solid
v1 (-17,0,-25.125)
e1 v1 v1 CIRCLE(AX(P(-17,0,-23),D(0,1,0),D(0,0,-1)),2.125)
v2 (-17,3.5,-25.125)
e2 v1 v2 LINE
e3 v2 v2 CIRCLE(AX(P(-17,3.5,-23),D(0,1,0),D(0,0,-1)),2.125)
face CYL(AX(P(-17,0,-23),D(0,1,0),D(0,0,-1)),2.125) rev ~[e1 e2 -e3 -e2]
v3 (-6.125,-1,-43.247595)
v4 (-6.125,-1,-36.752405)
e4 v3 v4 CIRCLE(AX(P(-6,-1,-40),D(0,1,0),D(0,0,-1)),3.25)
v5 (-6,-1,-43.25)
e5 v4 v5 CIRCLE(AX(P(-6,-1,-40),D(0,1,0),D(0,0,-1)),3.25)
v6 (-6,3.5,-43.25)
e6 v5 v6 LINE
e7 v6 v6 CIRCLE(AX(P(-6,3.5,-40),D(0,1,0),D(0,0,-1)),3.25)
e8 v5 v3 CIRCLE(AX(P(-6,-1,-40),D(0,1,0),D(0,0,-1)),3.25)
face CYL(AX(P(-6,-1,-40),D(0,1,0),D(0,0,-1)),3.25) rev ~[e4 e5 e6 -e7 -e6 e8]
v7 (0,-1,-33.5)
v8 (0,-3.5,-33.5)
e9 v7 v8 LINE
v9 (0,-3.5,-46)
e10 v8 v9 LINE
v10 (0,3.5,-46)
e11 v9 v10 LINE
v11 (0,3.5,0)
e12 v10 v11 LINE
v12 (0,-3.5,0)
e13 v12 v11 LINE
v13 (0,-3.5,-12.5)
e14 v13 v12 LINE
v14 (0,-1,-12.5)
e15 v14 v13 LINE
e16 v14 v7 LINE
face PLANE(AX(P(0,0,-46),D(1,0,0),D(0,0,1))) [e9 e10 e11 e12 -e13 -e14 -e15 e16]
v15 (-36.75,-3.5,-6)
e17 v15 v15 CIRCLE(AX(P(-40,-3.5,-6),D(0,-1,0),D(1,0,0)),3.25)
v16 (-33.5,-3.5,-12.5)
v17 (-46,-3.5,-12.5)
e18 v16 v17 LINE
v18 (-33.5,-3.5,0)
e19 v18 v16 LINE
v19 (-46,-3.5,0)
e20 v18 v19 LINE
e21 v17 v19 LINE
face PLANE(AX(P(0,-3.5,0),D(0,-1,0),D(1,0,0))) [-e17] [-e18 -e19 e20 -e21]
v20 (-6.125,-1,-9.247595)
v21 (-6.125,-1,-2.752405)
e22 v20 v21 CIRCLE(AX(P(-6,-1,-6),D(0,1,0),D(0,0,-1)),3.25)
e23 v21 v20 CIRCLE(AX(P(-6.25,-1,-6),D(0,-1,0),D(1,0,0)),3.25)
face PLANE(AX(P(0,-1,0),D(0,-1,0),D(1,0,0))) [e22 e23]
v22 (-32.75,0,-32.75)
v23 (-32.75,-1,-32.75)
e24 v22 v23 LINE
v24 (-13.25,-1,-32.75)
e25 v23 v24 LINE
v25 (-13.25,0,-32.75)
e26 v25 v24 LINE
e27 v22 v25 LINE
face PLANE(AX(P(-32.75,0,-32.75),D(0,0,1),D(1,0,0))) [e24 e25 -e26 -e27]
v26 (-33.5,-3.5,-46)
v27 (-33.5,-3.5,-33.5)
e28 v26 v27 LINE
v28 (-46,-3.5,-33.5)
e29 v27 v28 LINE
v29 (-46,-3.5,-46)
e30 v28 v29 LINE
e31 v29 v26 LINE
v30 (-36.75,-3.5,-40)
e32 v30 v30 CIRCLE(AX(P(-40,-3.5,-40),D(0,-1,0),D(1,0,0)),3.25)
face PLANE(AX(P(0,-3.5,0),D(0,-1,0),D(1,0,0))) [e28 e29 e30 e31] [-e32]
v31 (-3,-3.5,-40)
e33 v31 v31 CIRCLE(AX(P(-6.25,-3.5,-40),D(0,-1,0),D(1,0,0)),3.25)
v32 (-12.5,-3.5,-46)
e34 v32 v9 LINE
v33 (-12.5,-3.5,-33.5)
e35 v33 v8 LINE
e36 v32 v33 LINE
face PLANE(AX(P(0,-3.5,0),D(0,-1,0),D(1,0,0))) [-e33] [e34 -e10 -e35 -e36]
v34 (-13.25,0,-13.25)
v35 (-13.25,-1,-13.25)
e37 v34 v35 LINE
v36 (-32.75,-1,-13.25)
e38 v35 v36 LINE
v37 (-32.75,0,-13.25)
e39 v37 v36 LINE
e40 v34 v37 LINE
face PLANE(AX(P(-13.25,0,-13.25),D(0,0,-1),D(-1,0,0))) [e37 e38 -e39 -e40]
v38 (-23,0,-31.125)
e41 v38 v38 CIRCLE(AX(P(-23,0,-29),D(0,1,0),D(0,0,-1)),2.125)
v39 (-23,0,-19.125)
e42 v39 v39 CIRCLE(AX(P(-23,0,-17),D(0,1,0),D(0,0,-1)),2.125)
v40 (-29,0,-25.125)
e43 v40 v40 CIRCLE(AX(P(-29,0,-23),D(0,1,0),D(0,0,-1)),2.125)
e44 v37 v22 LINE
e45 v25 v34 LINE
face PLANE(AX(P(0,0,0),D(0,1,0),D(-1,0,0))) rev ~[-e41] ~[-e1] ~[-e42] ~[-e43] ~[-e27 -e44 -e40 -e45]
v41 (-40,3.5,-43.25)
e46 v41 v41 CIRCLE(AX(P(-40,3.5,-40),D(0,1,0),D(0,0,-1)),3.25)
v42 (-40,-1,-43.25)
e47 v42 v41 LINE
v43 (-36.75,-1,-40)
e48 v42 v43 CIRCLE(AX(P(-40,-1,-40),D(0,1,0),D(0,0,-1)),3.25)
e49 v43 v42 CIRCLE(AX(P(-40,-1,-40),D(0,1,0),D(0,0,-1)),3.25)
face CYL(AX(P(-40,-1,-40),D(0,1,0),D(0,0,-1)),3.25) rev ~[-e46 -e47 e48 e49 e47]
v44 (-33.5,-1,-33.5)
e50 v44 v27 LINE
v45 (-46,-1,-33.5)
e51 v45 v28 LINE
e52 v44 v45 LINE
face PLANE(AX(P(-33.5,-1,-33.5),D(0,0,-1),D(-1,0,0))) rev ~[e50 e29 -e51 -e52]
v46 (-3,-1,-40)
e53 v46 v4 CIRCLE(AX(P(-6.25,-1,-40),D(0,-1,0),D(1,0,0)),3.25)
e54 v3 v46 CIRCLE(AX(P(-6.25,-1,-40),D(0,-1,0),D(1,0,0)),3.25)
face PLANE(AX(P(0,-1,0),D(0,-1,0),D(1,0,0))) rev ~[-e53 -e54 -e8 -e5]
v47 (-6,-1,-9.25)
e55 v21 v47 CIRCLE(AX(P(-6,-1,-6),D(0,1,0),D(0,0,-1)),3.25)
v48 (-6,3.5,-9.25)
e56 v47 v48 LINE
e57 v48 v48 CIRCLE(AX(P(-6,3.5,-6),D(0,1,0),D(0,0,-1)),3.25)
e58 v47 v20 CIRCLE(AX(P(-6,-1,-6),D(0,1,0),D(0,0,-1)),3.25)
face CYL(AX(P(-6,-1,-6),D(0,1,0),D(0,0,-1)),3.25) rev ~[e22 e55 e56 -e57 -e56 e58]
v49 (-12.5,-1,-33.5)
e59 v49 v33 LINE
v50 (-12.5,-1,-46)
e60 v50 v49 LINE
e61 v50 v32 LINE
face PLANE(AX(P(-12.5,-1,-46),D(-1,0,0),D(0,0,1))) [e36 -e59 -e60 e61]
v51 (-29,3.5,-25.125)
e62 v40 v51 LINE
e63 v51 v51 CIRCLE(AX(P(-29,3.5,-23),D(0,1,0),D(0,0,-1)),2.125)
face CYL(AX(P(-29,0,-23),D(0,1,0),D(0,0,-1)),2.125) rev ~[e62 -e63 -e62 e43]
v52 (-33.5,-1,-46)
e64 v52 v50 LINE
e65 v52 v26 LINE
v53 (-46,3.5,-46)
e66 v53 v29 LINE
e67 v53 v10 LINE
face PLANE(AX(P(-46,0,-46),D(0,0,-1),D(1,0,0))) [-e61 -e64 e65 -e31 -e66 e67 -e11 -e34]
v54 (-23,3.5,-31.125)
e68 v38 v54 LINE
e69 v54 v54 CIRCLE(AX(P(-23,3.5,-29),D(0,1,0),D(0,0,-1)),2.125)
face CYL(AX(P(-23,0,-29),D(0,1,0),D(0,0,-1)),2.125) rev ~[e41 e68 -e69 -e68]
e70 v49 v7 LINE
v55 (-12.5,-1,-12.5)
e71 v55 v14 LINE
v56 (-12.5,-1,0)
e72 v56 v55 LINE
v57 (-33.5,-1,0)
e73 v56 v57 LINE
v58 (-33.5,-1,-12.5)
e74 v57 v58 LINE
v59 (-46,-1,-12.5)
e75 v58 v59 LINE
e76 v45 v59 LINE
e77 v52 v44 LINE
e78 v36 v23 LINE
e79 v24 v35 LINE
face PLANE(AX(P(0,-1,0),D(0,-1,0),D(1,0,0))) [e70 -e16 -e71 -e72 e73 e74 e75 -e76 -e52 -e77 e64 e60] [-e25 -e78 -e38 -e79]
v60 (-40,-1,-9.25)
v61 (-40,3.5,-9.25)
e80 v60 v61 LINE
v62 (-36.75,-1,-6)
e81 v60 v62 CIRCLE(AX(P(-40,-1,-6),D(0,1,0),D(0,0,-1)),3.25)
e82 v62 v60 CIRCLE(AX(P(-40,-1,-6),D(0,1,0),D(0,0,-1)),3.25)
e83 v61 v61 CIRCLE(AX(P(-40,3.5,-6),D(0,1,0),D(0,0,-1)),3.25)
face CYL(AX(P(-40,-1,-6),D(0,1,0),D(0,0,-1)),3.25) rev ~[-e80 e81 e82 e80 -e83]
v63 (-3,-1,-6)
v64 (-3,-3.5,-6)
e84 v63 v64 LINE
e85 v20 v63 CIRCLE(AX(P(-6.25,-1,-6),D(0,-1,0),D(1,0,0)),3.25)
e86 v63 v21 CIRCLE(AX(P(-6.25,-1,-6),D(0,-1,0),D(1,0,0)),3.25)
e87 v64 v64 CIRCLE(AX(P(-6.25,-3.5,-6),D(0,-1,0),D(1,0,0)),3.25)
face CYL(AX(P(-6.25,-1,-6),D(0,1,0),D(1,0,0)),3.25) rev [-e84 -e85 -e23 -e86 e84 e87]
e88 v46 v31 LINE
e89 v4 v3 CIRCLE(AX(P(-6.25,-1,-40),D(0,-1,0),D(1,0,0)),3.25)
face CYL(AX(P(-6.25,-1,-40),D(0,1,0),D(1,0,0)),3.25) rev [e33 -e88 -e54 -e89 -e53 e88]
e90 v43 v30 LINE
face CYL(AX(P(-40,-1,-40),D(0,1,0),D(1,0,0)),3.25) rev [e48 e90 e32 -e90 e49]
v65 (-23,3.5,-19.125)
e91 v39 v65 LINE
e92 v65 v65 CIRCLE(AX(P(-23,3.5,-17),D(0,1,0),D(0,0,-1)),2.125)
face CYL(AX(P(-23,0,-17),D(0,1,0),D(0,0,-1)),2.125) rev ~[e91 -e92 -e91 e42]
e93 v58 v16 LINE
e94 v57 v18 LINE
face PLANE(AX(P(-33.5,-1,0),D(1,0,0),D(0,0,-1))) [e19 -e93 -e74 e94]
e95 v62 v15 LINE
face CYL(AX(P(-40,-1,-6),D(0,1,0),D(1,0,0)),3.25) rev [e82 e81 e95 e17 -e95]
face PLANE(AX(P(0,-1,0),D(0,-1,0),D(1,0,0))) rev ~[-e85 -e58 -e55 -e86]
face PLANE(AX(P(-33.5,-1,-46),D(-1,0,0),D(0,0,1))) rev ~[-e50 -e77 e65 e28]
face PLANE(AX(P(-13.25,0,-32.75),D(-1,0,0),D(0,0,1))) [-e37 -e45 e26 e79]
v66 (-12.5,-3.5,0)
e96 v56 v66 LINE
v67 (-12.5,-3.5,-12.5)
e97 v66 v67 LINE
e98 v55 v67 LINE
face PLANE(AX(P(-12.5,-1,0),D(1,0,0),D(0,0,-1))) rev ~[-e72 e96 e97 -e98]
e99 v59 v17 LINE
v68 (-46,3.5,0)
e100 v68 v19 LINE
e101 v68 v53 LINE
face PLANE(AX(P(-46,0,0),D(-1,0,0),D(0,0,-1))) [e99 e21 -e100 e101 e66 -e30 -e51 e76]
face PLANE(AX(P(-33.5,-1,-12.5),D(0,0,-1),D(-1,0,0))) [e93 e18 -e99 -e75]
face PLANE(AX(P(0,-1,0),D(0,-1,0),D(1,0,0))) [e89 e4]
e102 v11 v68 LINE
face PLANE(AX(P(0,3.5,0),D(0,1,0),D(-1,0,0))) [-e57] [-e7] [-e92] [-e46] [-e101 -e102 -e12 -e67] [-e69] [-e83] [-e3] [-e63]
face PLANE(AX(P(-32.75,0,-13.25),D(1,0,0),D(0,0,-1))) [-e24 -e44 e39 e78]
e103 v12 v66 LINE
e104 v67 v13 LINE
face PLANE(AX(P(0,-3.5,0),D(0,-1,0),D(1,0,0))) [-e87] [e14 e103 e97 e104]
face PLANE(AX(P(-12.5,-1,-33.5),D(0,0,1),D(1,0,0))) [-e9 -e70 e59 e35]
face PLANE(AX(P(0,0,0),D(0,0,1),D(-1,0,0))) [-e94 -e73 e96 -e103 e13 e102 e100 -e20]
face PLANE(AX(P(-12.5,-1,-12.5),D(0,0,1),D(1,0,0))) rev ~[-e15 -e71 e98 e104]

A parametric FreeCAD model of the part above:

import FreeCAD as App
import Part
import Sketcher
from FreeCAD import Vector


def add_polygon(sketch, points):
    """Adds a closed chain of lines whose ends are joined by coincident constraints."""
    first, n = sketch.GeometryCount, len(points)
    for a, b in zip(points, points[1:] + points[:1]):
        sketch.addGeometry(Part.LineSegment(App.Vector(*a, 0), App.Vector(*b, 0)), False)
    for i in range(n):
        sketch.addConstraint(Sketcher.Constraint("Coincident", first + i, 2, first + (i + 1) % n, 1))

doc = App.newDocument("Part")
params = doc.addObject("Spreadsheet::Sheet", "Params")
for row, (alias, value) in enumerate([
    ("sketch1_width", "46 mm"),
    ("pad1_length", "3.5 mm"),
    ("sketch2_width", "46 mm"),
    ("pad2_length", "1 mm"),
    ("sketch3_diameter", "6.5 mm"),
    ("hole_diameter", "6.5 mm"),
    ("hole_depth", "9 mm"),
    ("sketch4_diameter", "4.25 mm"),
    ("hole2_diameter", "4.25 mm"),
    ("sketch5_diameter", "6.5 mm"),
    ("sketch5_width", "12.5 mm"),
    ("pad3_length", "2.5 mm"),
], start=1):
    params.set(f"A{row}", alias)
    params.set(f"B{row}", "=" + value)
    params.setAlias(f"B{row}", alias)

body = doc.addObject("PartDesign::Body", "Body")

# Sketch on XZ plane
sketch1 = body.newObject("Sketcher::SketchObject", "Sketch")
sketch1.AttachmentSupport = (doc.getObject("XZ_Plane"), [""])
sketch1.MapMode = "FlatFace"
add_polygon(sketch1, [(-46, 0), (0, 0), (0, -46), (-46, -46)])  # lines 0-3
sketch1.addConstraint([
    Sketcher.Constraint("Horizontal", 0),
    Sketcher.Constraint("Vertical", 1),
    Sketcher.Constraint("Horizontal", 2),
    Sketcher.Constraint("Vertical", 3),
    Sketcher.Constraint("Coincident", 0, 2, -1, 1),
    Sketcher.Constraint("Equal", 2, 1),
    Sketcher.Constraint("DistanceX", 0, 1, 0, 2, 46.0),
])
sketch1.setExpression("Constraints[10]", "Params.sketch1_width")
pad1 = body.newObject("PartDesign::Pad", "Pad")
pad1.Profile = sketch1
pad1.setExpression("Length", "Params.pad1_length")
pad1.Reversed = True

# Sketch on XZ plane
sketch2 = body.newObject("Sketcher::SketchObject", "Sketch001")
sketch2.AttachmentSupport = (doc.getObject("XZ_Plane"), [""])
sketch2.MapMode = "FlatFace"
add_polygon(sketch2, [(-46, 0), (-46, -46), (0, -46), (0, 0)])  # lines 0-3
add_polygon(sketch2, [(-32.75, -13.25), (-13.25, -13.25), (-13.25, -32.75), (-32.75, -32.75)])  # lines 4-7
sketch2.addConstraint([
    Sketcher.Constraint("Vertical", 0),
    Sketcher.Constraint("Horizontal", 1),
    Sketcher.Constraint("Vertical", 2),
    Sketcher.Constraint("Horizontal", 3),
    Sketcher.Constraint("Horizontal", 4),
    Sketcher.Constraint("Vertical", 5),
    Sketcher.Constraint("Horizontal", 6),
    Sketcher.Constraint("Vertical", 7),
    Sketcher.Constraint("Coincident", 2, 2, -1, 1),
    Sketcher.Constraint("Equal", 3, 0),
    Sketcher.Constraint("Equal", 6, 5),
    Sketcher.Constraint("DistanceX", 1, 1, 1, 2, 46.0),
    Sketcher.Constraint("DistanceX", 4, 2, -1, 1, 13.25),
    Sketcher.Constraint("DistanceY", 4, 2, -1, 1, 13.25),
    Sketcher.Constraint("DistanceY", 1, 2, 5, 2, 13.25),
])
sketch2.setExpression("Constraints[19]", "Params.sketch2_width")
pad2 = body.newObject("PartDesign::Pad", "Pad001")
pad2.Profile = sketch2
pad2.setExpression("Length", "Params.pad2_length")

# Sketch on XZ plane
sketch3 = body.newObject("Sketcher::SketchObject", "Sketch002")
sketch3.AttachmentSupport = (doc.getObject("XZ_Plane"), [""])
sketch3.MapMode = "FlatFace"
sketch3.AttachmentOffset = App.Placement(Vector(0, 0, 1), App.Rotation())
sketch3.addGeometry([
    Part.Circle(Vector(-6, -6, 0), Vector(0, 0, 1), 3.25),
    Part.Circle(Vector(-6, -40, 0), Vector(0, 0, 1), 3.25),
    Part.Circle(Vector(-40, -40, 0), Vector(0, 0, 1), 3.25),
    Part.Circle(Vector(-40, -6, 0), Vector(0, 0, 1), 3.25),
], False)
sketch3.addConstraint([
    Sketcher.Constraint("Equal", 0, 1),
    Sketcher.Constraint("Equal", 1, 2),
    Sketcher.Constraint("Equal", 2, 3),
    Sketcher.Constraint("Horizontal", 1, 3, 2, 3),
    Sketcher.Constraint("Horizontal", 0, 3, 3, 3),
    Sketcher.Constraint("Vertical", 0, 3, 1, 3),
    Sketcher.Constraint("Vertical", 2, 3, 3, 3),
    Sketcher.Constraint("Diameter", 0, 6.5),
    Sketcher.Constraint("DistanceX", 0, 3, -1, 1, 6.0),
    Sketcher.Constraint("DistanceY", 0, 3, -1, 1, 6.0),
    Sketcher.Constraint("DistanceY", 1, 3, -1, 1, 40.0),
    Sketcher.Constraint("DistanceX", 2, 3, -1, 1, 40.0),
])
sketch3.setExpression("Constraints[7]", "Params.sketch3_diameter")
doc.recompute()
hole = body.newObject("PartDesign::Hole", "Hole")
hole.Profile = sketch3
hole.ThreadType = "None"
hole.setExpression("Diameter", "Params.hole_diameter")
hole.DepthType = "Dimension"
hole.setExpression("Depth", "Params.hole_depth")
hole.DrillPoint = "Flat"

# Sketch on XZ plane
sketch4 = body.newObject("Sketcher::SketchObject", "Sketch003")
sketch4.AttachmentSupport = (doc.getObject("XZ_Plane"), [""])
sketch4.MapMode = "FlatFace"
sketch4.addGeometry([
    Part.Circle(Vector(-29, -23, 0), Vector(0, 0, 1), 2.125),
    Part.Circle(Vector(-23, -17, 0), Vector(0, 0, 1), 2.125),
    Part.Circle(Vector(-23, -29, 0), Vector(0, 0, 1), 2.125),
    Part.Circle(Vector(-17, -23, 0), Vector(0, 0, 1), 2.125),
], False)
sketch4.addConstraint([
    Sketcher.Constraint("Equal", 0, 1),
    Sketcher.Constraint("Equal", 1, 2),
    Sketcher.Constraint("Equal", 2, 3),
    Sketcher.Constraint("Horizontal", 0, 3, 3, 3),
    Sketcher.Constraint("Vertical", 1, 3, 2, 3),
    Sketcher.Constraint("Diameter", 0, 4.25),
    Sketcher.Constraint("DistanceX", 0, 3, -1, 1, 29.0),
    Sketcher.Constraint("DistanceY", 0, 3, -1, 1, 23.0),
    Sketcher.Constraint("DistanceX", 1, 3, -1, 1, 23.0),
    Sketcher.Constraint("DistanceY", 1, 3, -1, 1, 17.0),
    Sketcher.Constraint("DistanceY", 2, 3, -1, 1, 29.0),
    Sketcher.Constraint("DistanceX", 3, 3, -1, 1, 17.0),
])
sketch4.setExpression("Constraints[5]", "Params.sketch4_diameter")
doc.recompute()
hole2 = body.newObject("PartDesign::Hole", "Hole001")
hole2.Profile = sketch4
hole2.ThreadType = "None"
hole2.setExpression("Diameter", "Params.hole2_diameter")
hole2.DepthType = "ThroughAll"

# Sketch on XZ plane
sketch5 = body.newObject("Sketcher::SketchObject", "Sketch004")
sketch5.AttachmentSupport = (doc.getObject("XZ_Plane"), [""])
sketch5.MapMode = "FlatFace"
sketch5.AttachmentOffset = App.Placement(Vector(0, 0, 1), App.Rotation())
add_polygon(sketch5, [(0, -12.5), (0, 0), (-12.5, 0), (-12.5, -12.5)])  # lines 0-3
sketch5.addGeometry(Part.Circle(Vector(-6.25, -6, 0), Vector(0, 0, 1), 3.25), False)  # 4
add_polygon(sketch5, [(-33.5, -12.5), (-33.5, 0), (-46, 0), (-46, -12.5)])  # lines 5-8
sketch5.addGeometry(Part.Circle(Vector(-40, -6, 0), Vector(0, 0, 1), 3.25), False)  # 9
add_polygon(sketch5, [(-46, -33.5), (-46, -46), (-33.5, -46), (-33.5, -33.5)])  # lines 10-13
sketch5.addGeometry(Part.Circle(Vector(-40, -40, 0), Vector(0, 0, 1), 3.25), False)  # 14
add_polygon(sketch5, [(-12.5, -33.5), (-12.5, -46), (0, -46), (0, -33.5)])  # lines 15-18
sketch5.addGeometry(Part.Circle(Vector(-6.25, -40, 0), Vector(0, 0, 1), 3.25), False)  # 19
sketch5.addConstraint([
    Sketcher.Constraint("Vertical", 0),
    Sketcher.Constraint("Horizontal", 1),
    Sketcher.Constraint("Vertical", 2),
    Sketcher.Constraint("Horizontal", 3),
    Sketcher.Constraint("Vertical", 5),
    Sketcher.Constraint("Horizontal", 6),
    Sketcher.Constraint("Vertical", 7),
    Sketcher.Constraint("Horizontal", 8),
    Sketcher.Constraint("Vertical", 10),
    Sketcher.Constraint("Horizontal", 11),
    Sketcher.Constraint("Vertical", 12),
    Sketcher.Constraint("Horizontal", 13),
    Sketcher.Constraint("Vertical", 15),
    Sketcher.Constraint("Horizontal", 16),
    Sketcher.Constraint("Vertical", 17),
    Sketcher.Constraint("Horizontal", 18),
    Sketcher.Constraint("Coincident", 0, 2, -1, 1),
    Sketcher.Constraint("Equal", 4, 9),
    Sketcher.Constraint("Equal", 9, 14),
    Sketcher.Constraint("Equal", 14, 19),
    Sketcher.Constraint("PointOnObject", 5, 2, -1),
    Sketcher.Constraint("PointOnObject", 16, 2, -2),
    Sketcher.Constraint("Horizontal", 4, 3, 9, 3),
    Sketcher.Constraint("Horizontal", 14, 3, 19, 3),
    Sketcher.Constraint("Horizontal", 3, 2, 7, 2),
    Sketcher.Constraint("Horizontal", 11, 2, 15, 2),
    Sketcher.Constraint("Horizontal", 13, 2, 17, 2),
    Sketcher.Constraint("Vertical", 9, 3, 14, 3),
    Sketcher.Constraint("Vertical", 4, 3, 19, 3),
    Sketcher.Constraint("Vertical", 7, 2, 10, 2),
    Sketcher.Constraint("Vertical", 8, 2, 11, 2),
    Sketcher.Constraint("Vertical", 2, 2, 15, 2),
    Sketcher.Constraint("Equal", 3, 6),
    Sketcher.Constraint("Equal", 18, 0),
    Sketcher.Constraint("Equal", 7, 10),
    Sketcher.Constraint("Diameter", 4, 6.5),
    Sketcher.Constraint("DistanceX", 1, 2, 1, 1, 12.5),
    Sketcher.Constraint("DistanceY", 2, 2, 4, 3, 6.5),
    Sketcher.Constraint("DistanceX", 9, 3, 5, 2, 6.5),
    Sketcher.Constraint("DistanceY", 14, 3, 12, 2, 6.5),
    Sketcher.Constraint("DistanceX", 9, 3, -1, 1, 40.0),
    Sketcher.Constraint("DistanceY", 14, 3, -1, 1, 40.0),
    Sketcher.Constraint("DistanceX", 4, 3, -1, 1, 6.25),
])
sketch5.setExpression("Constraints[51]", "Params.sketch5_diameter")
sketch5.setExpression("Constraints[52]", "Params.sketch5_width")
pad3 = body.newObject("PartDesign::Pad", "Pad002")
pad3.Profile = sketch5
pad3.setExpression("Length", "Params.pad3_length")

doc.recompute()
